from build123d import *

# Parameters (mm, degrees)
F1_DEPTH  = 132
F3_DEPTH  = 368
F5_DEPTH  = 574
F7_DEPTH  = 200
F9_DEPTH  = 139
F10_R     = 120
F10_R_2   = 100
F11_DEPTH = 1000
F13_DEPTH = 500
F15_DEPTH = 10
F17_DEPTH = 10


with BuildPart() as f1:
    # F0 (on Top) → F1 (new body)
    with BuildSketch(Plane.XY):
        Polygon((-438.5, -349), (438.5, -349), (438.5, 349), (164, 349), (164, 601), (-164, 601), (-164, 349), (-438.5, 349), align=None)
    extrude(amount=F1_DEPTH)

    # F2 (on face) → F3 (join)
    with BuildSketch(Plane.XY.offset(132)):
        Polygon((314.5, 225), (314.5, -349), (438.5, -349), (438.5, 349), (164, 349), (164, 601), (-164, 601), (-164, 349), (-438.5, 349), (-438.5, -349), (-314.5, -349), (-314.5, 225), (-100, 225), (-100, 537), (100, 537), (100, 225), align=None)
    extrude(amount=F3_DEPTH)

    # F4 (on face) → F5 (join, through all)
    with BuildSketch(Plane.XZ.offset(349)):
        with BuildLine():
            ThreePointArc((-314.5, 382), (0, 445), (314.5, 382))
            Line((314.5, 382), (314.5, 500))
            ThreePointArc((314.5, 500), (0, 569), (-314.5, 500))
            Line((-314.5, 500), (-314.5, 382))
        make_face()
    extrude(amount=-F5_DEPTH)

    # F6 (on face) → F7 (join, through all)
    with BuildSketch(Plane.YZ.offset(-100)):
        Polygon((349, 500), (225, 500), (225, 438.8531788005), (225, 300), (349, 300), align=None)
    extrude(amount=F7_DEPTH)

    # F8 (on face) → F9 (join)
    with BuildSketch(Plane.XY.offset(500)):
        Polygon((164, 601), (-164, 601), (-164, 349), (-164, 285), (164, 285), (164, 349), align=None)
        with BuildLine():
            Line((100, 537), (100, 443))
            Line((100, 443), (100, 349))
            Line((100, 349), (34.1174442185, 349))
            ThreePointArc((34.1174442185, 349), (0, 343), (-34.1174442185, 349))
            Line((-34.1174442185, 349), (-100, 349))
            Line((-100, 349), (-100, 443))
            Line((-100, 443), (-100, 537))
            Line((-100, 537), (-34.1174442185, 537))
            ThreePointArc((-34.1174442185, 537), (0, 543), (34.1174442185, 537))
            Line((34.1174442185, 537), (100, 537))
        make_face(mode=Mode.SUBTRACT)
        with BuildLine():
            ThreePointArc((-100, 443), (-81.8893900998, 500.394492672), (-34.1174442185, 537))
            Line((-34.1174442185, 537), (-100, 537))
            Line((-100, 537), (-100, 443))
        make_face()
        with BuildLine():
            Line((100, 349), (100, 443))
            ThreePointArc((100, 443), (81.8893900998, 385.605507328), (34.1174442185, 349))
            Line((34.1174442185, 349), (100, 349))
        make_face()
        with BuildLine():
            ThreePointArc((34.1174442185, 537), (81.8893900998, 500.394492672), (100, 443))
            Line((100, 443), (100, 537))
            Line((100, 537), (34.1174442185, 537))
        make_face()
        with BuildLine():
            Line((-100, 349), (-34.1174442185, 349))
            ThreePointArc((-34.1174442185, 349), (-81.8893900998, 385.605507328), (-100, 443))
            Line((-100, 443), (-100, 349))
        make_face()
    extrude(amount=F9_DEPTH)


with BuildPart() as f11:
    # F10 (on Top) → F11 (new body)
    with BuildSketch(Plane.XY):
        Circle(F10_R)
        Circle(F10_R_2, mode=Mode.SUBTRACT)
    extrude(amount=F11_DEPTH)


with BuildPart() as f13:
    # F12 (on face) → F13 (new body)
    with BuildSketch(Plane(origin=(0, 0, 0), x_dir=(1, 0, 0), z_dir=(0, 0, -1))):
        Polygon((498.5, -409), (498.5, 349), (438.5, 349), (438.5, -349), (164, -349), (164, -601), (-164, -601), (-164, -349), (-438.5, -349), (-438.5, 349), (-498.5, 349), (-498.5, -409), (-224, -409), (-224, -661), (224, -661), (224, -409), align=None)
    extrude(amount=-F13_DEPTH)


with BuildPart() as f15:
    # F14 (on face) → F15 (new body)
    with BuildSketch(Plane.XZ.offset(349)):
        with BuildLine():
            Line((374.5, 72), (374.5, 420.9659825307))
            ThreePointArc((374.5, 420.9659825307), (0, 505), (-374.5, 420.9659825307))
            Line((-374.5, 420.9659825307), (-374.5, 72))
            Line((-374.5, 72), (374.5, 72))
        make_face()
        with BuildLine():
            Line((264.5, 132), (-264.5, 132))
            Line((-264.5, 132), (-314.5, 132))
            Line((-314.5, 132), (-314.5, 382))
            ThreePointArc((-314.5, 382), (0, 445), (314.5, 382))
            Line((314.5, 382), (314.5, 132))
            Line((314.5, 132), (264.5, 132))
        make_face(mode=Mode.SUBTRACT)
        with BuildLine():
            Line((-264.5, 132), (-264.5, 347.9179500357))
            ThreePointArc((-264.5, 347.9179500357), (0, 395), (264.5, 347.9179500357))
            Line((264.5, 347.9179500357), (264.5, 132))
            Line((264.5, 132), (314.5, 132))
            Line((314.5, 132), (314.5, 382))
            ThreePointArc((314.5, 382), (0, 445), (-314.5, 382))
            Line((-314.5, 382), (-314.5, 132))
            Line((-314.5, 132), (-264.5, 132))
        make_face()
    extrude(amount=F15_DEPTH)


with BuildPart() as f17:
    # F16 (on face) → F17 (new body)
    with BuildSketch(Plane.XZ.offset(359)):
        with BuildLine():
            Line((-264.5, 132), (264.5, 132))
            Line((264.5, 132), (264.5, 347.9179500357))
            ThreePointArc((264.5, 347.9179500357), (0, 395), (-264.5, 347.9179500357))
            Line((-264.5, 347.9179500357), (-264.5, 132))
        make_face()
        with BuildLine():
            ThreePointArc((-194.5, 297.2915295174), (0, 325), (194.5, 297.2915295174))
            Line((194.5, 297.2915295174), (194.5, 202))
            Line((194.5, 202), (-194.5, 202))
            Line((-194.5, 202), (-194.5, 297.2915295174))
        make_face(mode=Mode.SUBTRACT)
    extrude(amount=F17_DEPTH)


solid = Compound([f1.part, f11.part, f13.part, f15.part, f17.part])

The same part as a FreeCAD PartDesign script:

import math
import FreeCAD as App
import Part
import Sketcher

V = App.Vector

doc = App.newDocument("Part")
body = doc.addObject("PartDesign::Body", "Body")

# Sketch on XY plane
sketch1 = doc.addObject("Sketcher::SketchObject", "Sketch")
body.addObject(sketch1)
sketch1.AttachmentSupport = (doc.XY_Plane, [""])
sketch1.MapMode = "FlatFace"
sketch1.addGeometry([
    Part.LineSegment(V(-438, -349, 0), V(438, -349, 0)),  # 0
    Part.LineSegment(V(438, -349, 0), V(438, 349, 0)),  # 1
    Part.LineSegment(V(438, 349, 0), V(164, 349, 0)),  # 2
    Part.LineSegment(V(164, 349, 0), V(164, 601, 0)),  # 3
    Part.LineSegment(V(164, 601, 0), V(-164, 601, 0)),  # 4
    Part.LineSegment(V(-164, 601, 0), V(-164, 349, 0)),  # 5
    Part.LineSegment(V(-164, 349, 0), V(-438, 349, 0)),  # 6
    Part.LineSegment(V(-438, 349, 0), V(-438, -349, 0)),  # 7
], False)
sketch1.addConstraint([
    Sketcher.Constraint("Coincident", 0, 2, 1, 1),
    Sketcher.Constraint("Coincident", 1, 2, 2, 1),
    Sketcher.Constraint("Coincident", 2, 2, 3, 1),
    Sketcher.Constraint("Coincident", 3, 2, 4, 1),
    Sketcher.Constraint("Coincident", 4, 2, 5, 1),
    Sketcher.Constraint("Coincident", 5, 2, 6, 1),
    Sketcher.Constraint("Coincident", 6, 2, 7, 1),
    Sketcher.Constraint("Coincident", 7, 2, 0, 1),
    Sketcher.Constraint("Horizontal", 0),
    Sketcher.Constraint("Vertical", 1),
    Sketcher.Constraint("Horizontal", 2),
    Sketcher.Constraint("Vertical", 3),
    Sketcher.Constraint("Horizontal", 4),
    Sketcher.Constraint("Vertical", 5),
    Sketcher.Constraint("Horizontal", 6),
    Sketcher.Constraint("Vertical", 7),
    Sketcher.Constraint("Symmetric", 0, 2, 6, 2, -1, 1),
    Sketcher.Constraint("Symmetric", 2, 2, 5, 2, -2),
    Sketcher.Constraint("DistanceX", 0, 1, 0, 2, 877.0),
    Sketcher.Constraint("DistanceX", 4, 2, 4, 1, 328.0),
    Sketcher.Constraint("DistanceY", 1, 1, 1, 2, 698.0),
    Sketcher.Constraint("DistanceY", 3, 1, 3, 2, 252.0),
])
pad1 = doc.addObject("PartDesign::Pad", "Pad")
body.addObject(pad1)
pad1.Profile = sketch1
pad1.Length = 132

# Sketch on XY plane
sketch2 = doc.addObject("Sketcher::SketchObject", "Sketch001")
body.addObject(sketch2)
sketch2.AttachmentSupport = (doc.XY_Plane, [""])
sketch2.MapMode = "FlatFace"
sketch2.AttachmentOffset = App.Placement(V(0, 0, 132), App.Rotation())
sketch2.addGeometry([
    Part.LineSegment(V(314, 225, 0), V(314, -349, 0)),  # 0
    Part.LineSegment(V(314, -349, 0), V(438, -349, 0)),  # 1
    Part.LineSegment(V(438, -349, 0), V(438, 349, 0)),  # 2
    Part.LineSegment(V(438, 349, 0), V(164, 349, 0)),  # 3
    Part.LineSegment(V(164, 349, 0), V(164, 601, 0)),  # 4
    Part.LineSegment(V(164, 601, 0), V(-164, 601, 0)),  # 5
    Part.LineSegment(V(-164, 601, 0), V(-164, 349, 0)),  # 6
    Part.LineSegment(V(-164, 349, 0), V(-438, 349, 0)),  # 7
    Part.LineSegment(V(-438, 349, 0), V(-438, -349, 0)),  # 8
    Part.LineSegment(V(-438, -349, 0), V(-314, -349, 0)),  # 9
    Part.LineSegment(V(-314, -349, 0), V(-314, 225, 0)),  # 10
    Part.LineSegment(V(-314, 225, 0), V(-100, 225, 0)),  # 11
    Part.LineSegment(V(-100, 225, 0), V(-100, 537, 0)),  # 12
    Part.LineSegment(V(-100, 537, 0), V(100, 537, 0)),  # 13
    Part.LineSegment(V(100, 537, 0), V(100, 225, 0)),  # 14
    Part.LineSegment(V(100, 225, 0), V(314, 225, 0)),  # 15
], False)
sketch2.addConstraint([
    Sketcher.Constraint("Coincident", 0, 2, 1, 1),
    Sketcher.Constraint("Coincident", 1, 2, 2, 1),
    Sketcher.Constraint("Coincident", 2, 2, 3, 1),
    Sketcher.Constraint("Coincident", 3, 2, 4, 1),
    Sketcher.Constraint("Coincident", 4, 2, 5, 1),
    Sketcher.Constraint("Coincident", 5, 2, 6, 1),
    Sketcher.Constraint("Coincident", 6, 2, 7, 1),
    Sketcher.Constraint("Coincident", 7, 2, 8, 1),
    Sketcher.Constraint("Coincident", 8, 2, 9, 1),
    Sketcher.Constraint("Coincident", 9, 2, 10, 1),
    Sketcher.Constraint("Coincident", 10, 2, 11, 1),
    Sketcher.Constraint("Coincident", 11, 2, 12, 1),
    Sketcher.Constraint("Coincident", 12, 2, 13, 1),
    Sketcher.Constraint("Coincident", 13, 2, 14, 1),
    Sketcher.Constraint("Coincident", 14, 2, 15, 1),
    Sketcher.Constraint("Coincident", 15, 2, 0, 1),
    Sketcher.Constraint("Vertical", 0),
    Sketcher.Constraint("Horizontal", 1),
    Sketcher.Constraint("Vertical", 2),
    Sketcher.Constraint("Horizontal", 3),
    Sketcher.Constraint("Vertical", 4),
    Sketcher.Constraint("Horizontal", 5),
    Sketcher.Constraint("Vertical", 6),
    Sketcher.Constraint("Horizontal", 7),
    Sketcher.Constraint("Vertical", 8),
    Sketcher.Constraint("Horizontal", 9),
    Sketcher.Constraint("Vertical", 10),
    Sketcher.Constraint("Horizontal", 11),
    Sketcher.Constraint("Vertical", 12),
    Sketcher.Constraint("Horizontal", 13),
    Sketcher.Constraint("Vertical", 14),
    Sketcher.Constraint("Horizontal", 15),
    Sketcher.Constraint("Symmetric", 1, 2, 7, 2, -1, 1),
    Sketcher.Constraint("Symmetric", 3, 2, 6, 2, -2),
    Sketcher.Constraint("Symmetric", 0, 2, 9, 2, -2),
    Sketcher.Constraint("Symmetric", 11, 2, 14, 2, -2),
    Sketcher.Constraint("DistanceX", 1, 1, 1, 2, 124.0),
    Sketcher.Constraint("DistanceX", 5, 2, 5, 1, 328.0),
    Sketcher.Constraint("DistanceX", 13, 1, 13, 2, 200.0),
    Sketcher.Constraint("DistanceY", 0, 2, 0, 1, 574.0),
    Sketcher.Constraint("DistanceY", 2, 1, 2, 2, 698.0),
    Sketcher.Constraint("DistanceY", 4, 1, 4, 2, 252.0),
    Sketcher.Constraint("DistanceY", 12, 1, 12, 2, 312.0),
    Sketcher.Constraint("DistanceX", 3, 2, 3, 1, 274.5),
])
pad2 = doc.addObject("PartDesign::Pad", "Pad001")
body.addObject(pad2)
pad2.Profile = sketch2
pad2.Length = 368

# Sketch on XZ plane
sketch3 = doc.addObject("Sketcher::SketchObject", "Sketch002")
body.addObject(sketch3)
sketch3.AttachmentSupport = (doc.XZ_Plane, [""])
sketch3.MapMode = "FlatFace"
sketch3.AttachmentOffset = App.Placement(V(0, 0, 349), App.Rotation())
sketch3.addGeometry([
    Part.ArcOfCircle(Part.Circle(V(0, -372, 0), V(0, 0, 1), 817), math.radians(67), math.radians(113)),
    Part.LineSegment(V(314, 382, 0), V(314, 500, 0)),
    Part.ArcOfCircle(Part.Circle(V(0, -182, 0), V(0, 0, 1), 751), math.radians(65), math.radians(115)),
    Part.LineSegment(V(-314, 500, 0), V(-314, 382, 0)),
], False)
sketch3.addConstraint([
    Sketcher.Constraint("Coincident", 0, 1, 1, 1),
    Sketcher.Constraint("Coincident", 1, 2, 2, 1),
    Sketcher.Constraint("Coincident", 2, 2, 3, 1),
    Sketcher.Constraint("Coincident", 3, 2, 0, 2),
    Sketcher.Constraint("Vertical", 1),
    Sketcher.Constraint("Vertical", 3),
    Sketcher.Constraint("PointOnObject", 0, 3, -2),
    Sketcher.Constraint("PointOnObject", 2, 3, -2),
    Sketcher.Constraint("Equal", 1, 3),
    Sketcher.Constraint("DistanceY", 1, 1, 1, 2, 118.0),
    Sketcher.Constraint("DistanceY", -1, 1, 1, 2, 500.0),
    Sketcher.Constraint("DistanceX", 3, 2, 1, 2, 629.0),
    Sketcher.Constraint("Radius", 0, 816.501984),
    Sketcher.Constraint("Radius", 2, 751.240942),
])
pad3 = doc.addObject("PartDesign::Pad", "Pad002")
body.addObject(pad3)
pad3.Profile = sketch3
pad3.Length = 574
pad3.Reversed = True

# Sketch on YZ plane
sketch4 = doc.addObject("Sketcher::SketchObject", "Sketch003")
body.addObject(sketch4)
sketch4.AttachmentSupport = (doc.YZ_Plane, [""])
sketch4.MapMode = "FlatFace"
sketch4.AttachmentOffset = App.Placement(V(0, 0, -100), App.Rotation())
sketch4.addGeometry([
    Part.LineSegment(V(349, 500, 0), V(225, 500, 0)),
    Part.LineSegment(V(225, 500, 0), V(225, 300, 0)),
    Part.LineSegment(V(225, 300, 0), V(349, 300, 0)),
    Part.LineSegment(V(349, 300, 0), V(349, 500, 0)),
], False)
sketch4.addConstraint([
    Sketcher.Constraint("Coincident", 0, 2, 1, 1),
    Sketcher.Constraint("Coincident", 1, 2, 2, 1),
    Sketcher.Constraint("Coincident", 2, 2, 3, 1),
    Sketcher.Constraint("Coincident", 3, 2, 0, 1),
    Sketcher.Constraint("Horizontal", 0),
    Sketcher.Constraint("Vertical", 1),
    Sketcher.Constraint("Horizontal", 2),
    Sketcher.Constraint("Vertical", 3),
    Sketcher.Constraint("DistanceX", 0, 2, 0, 1, 124.0),
    Sketcher.Constraint("DistanceY", 1, 2, 1, 1, 200.0),
    Sketcher.Constraint("DistanceX", -1, 1, 0, 2, 225.0),
    Sketcher.Constraint("DistanceY", -1, 1, 0, 2, 500.0),
])
pad4 = doc.addObject("PartDesign::Pad", "Pad003")
body.addObject(pad4)
pad4.Profile = sketch4
pad4.Type = "UpToLast"

# Sketch on XY plane
sketch5 = doc.addObject("Sketcher::SketchObject", "Sketch004")
body.addObject(sketch5)
sketch5.AttachmentSupport = (doc.XY_Plane, [""])
sketch5.MapMode = "FlatFace"
sketch5.AttachmentOffset = App.Placement(V(0, 0, 500), App.Rotation())
sketch5.addGeometry([
    Part.LineSegment(V(164, 601, 0), V(-164, 601, 0)),  # 0
    Part.LineSegment(V(-164, 601, 0), V(-164, 285, 0)),  # 1
    Part.LineSegment(V(-164, 285, 0), V(164, 285, 0)),  # 2
    Part.LineSegment(V(164, 285, 0), V(164, 601, 0)),  # 3
    Part.ArcOfCircle(Part.Circle(V(0, 443, 0), V(0, 0, 1), 100), math.radians(-70), math.radians(0)),  # 4
    Part.ArcOfCircle(Part.Circle(V(0, 443, 0), V(0, 0, 1), 100), math.radians(-110), math.radians(-70)),  # 5
    Part.ArcOfCircle(Part.Circle(V(0, 443, 0), V(0, 0, 1), 100), math.radians(180), math.radians(250)),  # 6
    Part.ArcOfCircle(Part.Circle(V(0, 443, 0), V(0, 0, 1), 100), math.radians(110), math.radians(180)),  # 7
    Part.ArcOfCircle(Part.Circle(V(0, 443, 0), V(0, 0, 1), 100), math.radians(70), math.radians(110)),  # 8
    Part.ArcOfCircle(Part.Circle(V(0, 443, 0), V(0, 0, 1), 100), math.radians(0), math.radians(70)),  # 9
], False)
sketch5.addConstraint([
    Sketcher.Constraint("Coincident", 0, 2, 1, 1),
    Sketcher.Constraint("Coincident", 1, 2, 2, 1),
    Sketcher.Constraint("Coincident", 2, 2, 3, 1),
    Sketcher.Constraint("Coincident", 3, 2, 0, 1),
    Sketcher.Constraint("Tangent", 4, 1, 5, 2),
    Sketcher.Constraint("Tangent", 5, 1, 6, 2),
    Sketcher.Constraint("Tangent", 6, 1, 7, 2),
    Sketcher.Constraint("Tangent", 7, 1, 8, 2),
    Sketcher.Constraint("Tangent", 8, 1, 9, 2),
    Sketcher.Constraint("Tangent", 9, 1, 4, 2),
    Sketcher.Constraint("Horizontal", 0),
    Sketcher.Constraint("Vertical", 1),
    Sketcher.Constraint("Horizontal", 2),
    Sketcher.Constraint("Vertical", 3),
    Sketcher.Constraint("Coincident", 6, 3, 4, 3),
    Sketcher.Constraint("Equal", 6, 7),
    Sketcher.Constraint("Symmetric", 4, 1, 5, 1, -2),
    Sketcher.Constraint("Horizontal", 9, 3, 6, 1),
    Sketcher.Constraint("Horizontal", 7, 1, 8, 1),
    Sketcher.Constraint("Horizontal", 6, 1, 9, 1),
    Sketcher.Constraint("Vertical", 5, 1, 7, 1),
    Sketcher.Constraint("Radius", 4, 100.0),
    Sketcher.Constraint("DistanceX", 0, 2, 0, 1, 328.0),
    Sketcher.Constraint("DistanceY", 1, 2, 1, 1, 316.0),
    Sketcher.Constraint("DistanceY", -1, 1, 4, 3, 443.0),
    Sketcher.Constraint("DistanceX", 0, 2, -1, 1, 164.0),
    Sketcher.Constraint("DistanceY", -1, 1, 0, 2, 601.0),
    Sketcher.Constraint("DistanceY", -1, 1, 4, 1, 349.0),
])
pad5 = doc.addObject("PartDesign::Pad", "Pad004")
body.addObject(pad5)
pad5.Profile = sketch5
pad5.Length = 139
body2 = doc.addObject("PartDesign::Body", "Body001")

# Sketch on XY plane
sketch6 = doc.addObject("Sketcher::SketchObject", "Sketch005")
body2.addObject(sketch6)
sketch6.AttachmentSupport = (doc.getObject("XY_Plane001"), [""])
sketch6.MapMode = "FlatFace"
sketch6.addGeometry([
    Part.Circle(V(0, 0, 0), V(0, 0, 1), 120),
    Part.Circle(V(0, 0, 0), V(0, 0, 1), 100),
], False)
sketch6.addConstraint([
    Sketcher.Constraint("Coincident", 0, 3, -1, 1),
    Sketcher.Constraint("Coincident", 1, 3, -1, 1),
    Sketcher.Constraint("Diameter", 0, 240.0),
    Sketcher.Constraint("Diameter", 1, 200.0),
])
pad6 = doc.addObject("PartDesign::Pad", "Pad005")
body2.addObject(pad6)
pad6.Profile = sketch6
pad6.Length = 1000
body3 = doc.addObject("PartDesign::Body", "Body002")

# Sketch on XY plane
sketch7 = doc.addObject("Sketcher::SketchObject", "Sketch006")
body3.addObject(sketch7)
sketch7.AttachmentSupport = (doc.getObject("XY_Plane002"), [""])
sketch7.MapMode = "FlatFace"
sketch7.addGeometry([
    Part.LineSegment(V(498, 409, 0), V(498, -349, 0)),  # 0
    Part.LineSegment(V(498, -349, 0), V(438, -349, 0)),  # 1
    Part.LineSegment(V(438, -349, 0), V(438, 349, 0)),  # 2
    Part.LineSegment(V(438, 349, 0), V(164, 349, 0)),  # 3
    Part.LineSegment(V(164, 349, 0), V(164, 601, 0)),  # 4
    Part.LineSegment(V(164, 601, 0), V(-164, 601, 0)),  # 5
    Part.LineSegment(V(-164, 601, 0), V(-164, 349, 0)),  # 6
    Part.LineSegment(V(-164, 349, 0), V(-438, 349, 0)),  # 7
    Part.LineSegment(V(-438, 349, 0), V(-438, -349, 0)),  # 8
    Part.LineSegment(V(-438, -349, 0), V(-498, -349, 0)),  # 9
    Part.LineSegment(V(-498, -349, 0), V(-498, 409, 0)),  # 10
    Part.LineSegment(V(-498, 409, 0), V(-224, 409, 0)),  # 11
    Part.LineSegment(V(-224, 409, 0), V(-224, 661, 0)),  # 12
    Part.LineSegment(V(-224, 661, 0), V(224, 661, 0)),  # 13
    Part.LineSegment(V(224, 661, 0), V(224, 409, 0)),  # 14
    Part.LineSegment(V(224, 409, 0), V(498, 409, 0)),  # 15
], False)
sketch7.addConstraint([
    Sketcher.Constraint("Coincident", 0, 2, 1, 1),
    Sketcher.Constraint("Coincident", 1, 2, 2, 1),
    Sketcher.Constraint("Coincident", 2, 2, 3, 1),
    Sketcher.Constraint("Coincident", 3, 2, 4, 1),
    Sketcher.Constraint("Coincident", 4, 2, 5, 1),
    Sketcher.Constraint("Coincident", 5, 2, 6, 1),
    Sketcher.Constraint("Coincident", 6, 2, 7, 1),
    Sketcher.Constraint("Coincident", 7, 2, 8, 1),
    Sketcher.Constraint("Coincident", 8, 2, 9, 1),
    Sketcher.Constraint("Coincident", 9, 2, 10, 1),
    Sketcher.Constraint("Coincident", 10, 2, 11, 1),
    Sketcher.Constraint("Coincident", 11, 2, 12, 1),
    Sketcher.Constraint("Coincident", 12, 2, 13, 1),
    Sketcher.Constraint("Coincident", 13, 2, 14, 1),
    Sketcher.Constraint("Coincident", 14, 2, 15, 1),
    Sketcher.Constraint("Coincident", 15, 2, 0, 1),
    Sketcher.Constraint("Vertical", 0),
    Sketcher.Constraint("Horizontal", 1),
    Sketcher.Constraint("Vertical", 2),
    Sketcher.Constraint("Horizontal", 3),
    Sketcher.Constraint("Vertical", 4),
    Sketcher.Constraint("Horizontal", 5),
    Sketcher.Constraint("Vertical", 6),
    Sketcher.Constraint("Horizontal", 7),
    Sketcher.Constraint("Vertical", 8),
    Sketcher.Constraint("Horizontal", 9),
    Sketcher.Constraint("Vertical", 10),
    Sketcher.Constraint("Horizontal", 11),
    Sketcher.Constraint("Vertical", 12),
    Sketcher.Constraint("Horizontal", 13),
    Sketcher.Constraint("Vertical", 14),
    Sketcher.Constraint("Horizontal", 15),
    Sketcher.Constraint("Symmetric", 1, 2, 7, 2, -1, 1),
    Sketcher.Constraint("Symmetric", 3, 2, 6, 2, -2),
    Sketcher.Constraint("Symmetric", 0, 2, 9, 2, -2),
    Sketcher.Constraint("Symmetric", 11, 2, 14, 2, -2),
    Sketcher.Constraint("Equal", 7, 11),
    Sketcher.Constraint("Equal", 6, 12),
    Sketcher.Constraint("DistanceX", 1, 2, 1, 1, 60.0),
    Sketcher.Constraint("DistanceX", 5, 2, 5, 1, 328.0),
    Sketcher.Constraint("DistanceY", 0, 2, 0, 1, 758.0),
    Sketcher.Constraint("DistanceY", 2, 1, 2, 2, 698.0),
    Sketcher.Constraint("DistanceY", 4, 1, 4, 2, 252.0),
    Sketcher.Constraint("DistanceX", 3, 2, 3, 1, 274.5),
])
pad7 = doc.addObject("PartDesign::Pad", "Pad006")
body3.addObject(pad7)
pad7.Profile = sketch7
pad7.Length = 500
body4 = doc.addObject("PartDesign::Body", "Body003")

# Sketch on XZ plane
sketch8 = doc.addObject("Sketcher::SketchObject", "Sketch007")
body4.addObject(sketch8)
sketch8.AttachmentSupport = (doc.getObject("XZ_Plane003"), [""])
sketch8.MapMode = "FlatFace"
sketch8.AttachmentOffset = App.Placement(V(0, 0, 349), App.Rotation())
sketch8.addGeometry([
    Part.LineSegment(V(374, 72, 0), V(374, 421, 0)),  # 0
    Part.ArcOfCircle(Part.Circle(V(0, -372, 0), V(0, 0, 1), 877), math.radians(65), math.radians(115)),  # 1
    Part.LineSegment(V(-374, 421, 0), V(-374, 72, 0)),  # 2
    Part.LineSegment(V(-374, 72, 0), V(374, 72, 0)),  # 3
    Part.LineSegment(V(264, 132, 0), V(-264, 132, 0)),  # 4
    Part.LineSegment(V(-264, 132, 0), V(-264, 348, 0)),  # 5
    Part.ArcOfCircle(Part.Circle(V(0, -372, 0), V(0, 0, 1), 767), math.radians(70), math.radians(110)),  # 6
    Part.LineSegment(V(264, 348, 0), V(264, 132, 0)),  # 7
], False)
sketch8.addConstraint([
    Sketcher.Constraint("Coincident", 0, 2, 1, 1),
    Sketcher.Constraint("Coincident", 1, 2, 2, 1),
    Sketcher.Constraint("Coincident", 2, 2, 3, 1),
    Sketcher.Constraint("Coincident", 3, 2, 0, 1),
    Sketcher.Constraint("Coincident", 4, 2, 5, 1),
    Sketcher.Constraint("Coincident", 5, 2, 6, 2),
    Sketcher.Constraint("Coincident", 6, 1, 7, 1),
    Sketcher.Constraint("Coincident", 7, 2, 4, 1),
    Sketcher.Constraint("Vertical", 0),
    Sketcher.Constraint("Vertical", 2),
    Sketcher.Constraint("Horizontal", 3),
    Sketcher.Constraint("Horizontal", 4),
    Sketcher.Constraint("Vertical", 5),
    Sketcher.Constraint("Vertical", 7),
    Sketcher.Constraint("Coincident", 6, 3, 1, 3),
    Sketcher.Constraint("PointOnObject", 1, 3, -2),
    Sketcher.Constraint("Equal", 0, 2),
    Sketcher.Constraint("Equal", 5, 7),
    Sketcher.Constraint("DistanceX", 3, 1, 3, 2, 749.0),
    Sketcher.Constraint("DistanceX", 4, 2, 4, 1, 529.0),
    Sketcher.Constraint("DistanceY", -1, 1, 2, 2, 72.0),
    Sketcher.Constraint("DistanceY", -1, 1, 4, 2, 132.0),
    Sketcher.Constraint("Radius", 1, 876.501984),
    Sketcher.Constraint("Radius", 6, 766.501984),
    Sketcher.Constraint("DistanceY", 5, 1, 5, 2, 215.91795),
])
pad8 = doc.addObject("PartDesign::Pad", "Pad007")
body4.addObject(pad8)
pad8.Profile = sketch8
pad8.Length = 10
body5 = doc.addObject("PartDesign::Body", "Body004")

# Sketch on XZ plane
sketch9 = doc.addObject("Sketcher::SketchObject", "Sketch008")
body5.addObject(sketch9)
sketch9.AttachmentSupport = (doc.getObject("XZ_Plane004"), [""])
sketch9.MapMode = "FlatFace"
sketch9.AttachmentOffset = App.Placement(V(0, 0, 359), App.Rotation())
sketch9.addGeometry([
    Part.LineSegment(V(-264, 132, 0), V(264, 132, 0)),  # 0
    Part.LineSegment(V(264, 132, 0), V(264, 348, 0)),  # 1
    Part.ArcOfCircle(Part.Circle(V(0, -372, 0), V(0, 0, 1), 767), math.radians(70), math.radians(110)),  # 2
    Part.LineSegment(V(-264, 348, 0), V(-264, 132, 0)),  # 3
    Part.LineSegment(V(-194, 202, 0), V(-194, 297, 0)),  # 4
    Part.ArcOfCircle(Part.Circle(V(0, -372, 0), V(0, 0, 1), 697), math.radians(74), math.radians(106)),  # 5
    Part.LineSegment(V(194, 297, 0), V(194, 202, 0)),  # 6
    Part.LineSegment(V(194, 202, 0), V(-194, 202, 0)),  # 7
], False)
sketch9.addConstraint([
    Sketcher.Constraint("Coincident", 0, 2, 1, 1),
    Sketcher.Constraint("Coincident", 1, 2, 2, 1),
    Sketcher.Constraint("Coincident", 2, 2, 3, 1),
    Sketcher.Constraint("Coincident", 3, 2, 0, 1),
    Sketcher.Constraint("Coincident", 4, 2, 5, 2),
    Sketcher.Constraint("Coincident", 5, 1, 6, 1),
    Sketcher.Constraint("Coincident", 6, 2, 7, 1),
    Sketcher.Constraint("Coincident", 7, 2, 4, 1),
    Sketcher.Constraint("Horizontal", 0),
    Sketcher.Constraint("Vertical", 1),
    Sketcher.Constraint("Vertical", 3),
    Sketcher.Constraint("Vertical", 4),
    Sketcher.Constraint("Vertical", 6),
    Sketcher.Constraint("Horizontal", 7),
    Sketcher.Constraint("Coincident", 5, 3, 2, 3),
    Sketcher.Constraint("PointOnObject", 2, 3, -2),
    Sketcher.Constraint("Equal", 1, 3),
    Sketcher.Constraint("Equal", 4, 6),
    Sketcher.Constraint("DistanceX", 0, 1, 0, 2, 529.0),
    Sketcher.Constraint("DistanceX", 7, 2, 7, 1, 389.0),
    Sketcher.Constraint("DistanceY", -1, 1, 0, 2, 132.0),
    Sketcher.Constraint("DistanceY", -1, 1, 6, 2, 202.0),
    Sketcher.Constraint("Radius", 2, 766.501984),
    Sketcher.Constraint("Radius", 5, 696.501984),
    Sketcher.Constraint("DistanceY", 1, 1, 1, 2, 215.91795),
])
pad9 = doc.addObject("PartDesign::Pad", "Pad008")
body5.addObject(pad9)
pad9.Profile = sketch9
pad9.Length = 10

doc.recompute()
